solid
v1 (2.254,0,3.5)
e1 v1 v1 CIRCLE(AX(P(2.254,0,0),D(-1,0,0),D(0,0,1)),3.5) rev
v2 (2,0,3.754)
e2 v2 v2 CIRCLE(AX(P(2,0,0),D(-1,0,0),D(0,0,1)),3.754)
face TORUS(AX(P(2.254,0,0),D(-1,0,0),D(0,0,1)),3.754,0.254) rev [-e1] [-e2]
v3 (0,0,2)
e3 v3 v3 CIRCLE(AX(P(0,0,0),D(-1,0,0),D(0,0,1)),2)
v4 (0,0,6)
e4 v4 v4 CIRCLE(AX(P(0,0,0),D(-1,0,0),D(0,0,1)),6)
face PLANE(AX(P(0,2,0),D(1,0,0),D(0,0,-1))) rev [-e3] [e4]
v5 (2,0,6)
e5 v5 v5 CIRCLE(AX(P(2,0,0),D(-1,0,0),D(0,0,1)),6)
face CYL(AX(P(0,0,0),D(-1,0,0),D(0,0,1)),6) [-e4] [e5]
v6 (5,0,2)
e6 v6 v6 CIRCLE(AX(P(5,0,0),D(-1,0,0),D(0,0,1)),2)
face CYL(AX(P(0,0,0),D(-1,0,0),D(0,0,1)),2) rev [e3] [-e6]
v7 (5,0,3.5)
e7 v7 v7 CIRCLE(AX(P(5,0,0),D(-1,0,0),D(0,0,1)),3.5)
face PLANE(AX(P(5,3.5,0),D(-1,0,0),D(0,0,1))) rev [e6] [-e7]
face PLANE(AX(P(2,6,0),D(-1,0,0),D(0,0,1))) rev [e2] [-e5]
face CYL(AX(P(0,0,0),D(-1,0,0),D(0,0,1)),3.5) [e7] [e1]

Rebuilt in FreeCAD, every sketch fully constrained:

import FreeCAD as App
import Part
import Sketcher
from FreeCAD import Vector


def edges_at(feature, points):
    """Names of the edges that pass closest to the given points."""
    edges = feature.Shape.Edges
    near = lambda p: min(range(len(edges)), key=lambda i: edges[i].distToShape(Part.Vertex(*p))[0])
    return sorted({f"Edge{near(p) + 1}" for p in points})


def add_polygon(sketch, points):
    """Adds a closed chain of lines whose ends are joined by coincident constraints."""
    first, n = sketch.GeometryCount, len(points)
    for a, b in zip(points, points[1:] + points[:1]):
        sketch.addGeometry(Part.LineSegment(App.Vector(*a, 0), App.Vector(*b, 0)), False)
    for i in range(n):
        sketch.addConstraint(Sketcher.Constraint("Coincident", first + i, 2, first + (i + 1) % n, 1))

doc = App.newDocument("Part")
params = doc.addObject("Spreadsheet::Sheet", "Params")
for row, (alias, value) in enumerate([
    ("sketch1_width", "5 mm"),
    ("sketch1_width2", "3 mm"),
    ("sketch1_height", "4 mm"),
    ("sketch1_height2", "1.5 mm"),
    ("revolution_angle", "360 deg"),
    ("fillet_radius", "0.254 mm"),
], start=1):
    params.set(f"A{row}", alias)
    params.set(f"B{row}", "=" + value)
    params.setAlias(f"B{row}", alias)

body = doc.addObject("PartDesign::Body", "Body")

# Sketch on XY plane
sketch1 = body.newObject("Sketcher::SketchObject", "Sketch")
sketch1.AttachmentSupport = (doc.getObject("XY_Plane"), [""])
sketch1.MapMode = "FlatFace"
add_polygon(sketch1, [(0, 6), (0, 2), (5, 2), (5, 3.5), (2, 3.5), (2, 6)])  # lines 0-5
sketch1.addConstraint([
    Sketcher.Constraint("Vertical", 0),
    Sketcher.Constraint("Horizontal", 1),
    Sketcher.Constraint("Vertical", 2),
    Sketcher.Constraint("Horizontal", 3),
    Sketcher.Constraint("Vertical", 4),
    Sketcher.Constraint("Horizontal", 5),
    Sketcher.Constraint("PointOnObject", 0, 2, -2),
    Sketcher.Constraint("DistanceX", 1, 1, 1, 2, 5.0),
    Sketcher.Constraint("DistanceX", 3, 2, 3, 1, 3.0),
    Sketcher.Constraint("DistanceY", 0, 2, 0, 1, 4.0),
    Sketcher.Constraint("DistanceY", 2, 1, 2, 2, 1.5),
    Sketcher.Constraint("DistanceY", -1, 1, 0, 2, 2.0),
])
sketch1.setExpression("Constraints[13]", "Params.sketch1_width")
sketch1.setExpression("Constraints[14]", "Params.sketch1_width2")
sketch1.setExpression("Constraints[15]", "Params.sketch1_height")
sketch1.setExpression("Constraints[16]", "Params.sketch1_height2")
revolution = body.newObject("PartDesign::Revolution", "Revolution")
revolution.Profile = sketch1
revolution.ReferenceAxis = (sketch1, ["H_Axis"])
revolution.setExpression("Angle", "Params.revolution_angle")
doc.recompute()

fillet = body.newObject("PartDesign::Fillet", "Fillet")
fillet.Base = (revolution, edges_at(revolution, [(2, 0, -3.5)]))
fillet.setExpression("Radius", "Params.fillet_radius")

doc.recompute()
